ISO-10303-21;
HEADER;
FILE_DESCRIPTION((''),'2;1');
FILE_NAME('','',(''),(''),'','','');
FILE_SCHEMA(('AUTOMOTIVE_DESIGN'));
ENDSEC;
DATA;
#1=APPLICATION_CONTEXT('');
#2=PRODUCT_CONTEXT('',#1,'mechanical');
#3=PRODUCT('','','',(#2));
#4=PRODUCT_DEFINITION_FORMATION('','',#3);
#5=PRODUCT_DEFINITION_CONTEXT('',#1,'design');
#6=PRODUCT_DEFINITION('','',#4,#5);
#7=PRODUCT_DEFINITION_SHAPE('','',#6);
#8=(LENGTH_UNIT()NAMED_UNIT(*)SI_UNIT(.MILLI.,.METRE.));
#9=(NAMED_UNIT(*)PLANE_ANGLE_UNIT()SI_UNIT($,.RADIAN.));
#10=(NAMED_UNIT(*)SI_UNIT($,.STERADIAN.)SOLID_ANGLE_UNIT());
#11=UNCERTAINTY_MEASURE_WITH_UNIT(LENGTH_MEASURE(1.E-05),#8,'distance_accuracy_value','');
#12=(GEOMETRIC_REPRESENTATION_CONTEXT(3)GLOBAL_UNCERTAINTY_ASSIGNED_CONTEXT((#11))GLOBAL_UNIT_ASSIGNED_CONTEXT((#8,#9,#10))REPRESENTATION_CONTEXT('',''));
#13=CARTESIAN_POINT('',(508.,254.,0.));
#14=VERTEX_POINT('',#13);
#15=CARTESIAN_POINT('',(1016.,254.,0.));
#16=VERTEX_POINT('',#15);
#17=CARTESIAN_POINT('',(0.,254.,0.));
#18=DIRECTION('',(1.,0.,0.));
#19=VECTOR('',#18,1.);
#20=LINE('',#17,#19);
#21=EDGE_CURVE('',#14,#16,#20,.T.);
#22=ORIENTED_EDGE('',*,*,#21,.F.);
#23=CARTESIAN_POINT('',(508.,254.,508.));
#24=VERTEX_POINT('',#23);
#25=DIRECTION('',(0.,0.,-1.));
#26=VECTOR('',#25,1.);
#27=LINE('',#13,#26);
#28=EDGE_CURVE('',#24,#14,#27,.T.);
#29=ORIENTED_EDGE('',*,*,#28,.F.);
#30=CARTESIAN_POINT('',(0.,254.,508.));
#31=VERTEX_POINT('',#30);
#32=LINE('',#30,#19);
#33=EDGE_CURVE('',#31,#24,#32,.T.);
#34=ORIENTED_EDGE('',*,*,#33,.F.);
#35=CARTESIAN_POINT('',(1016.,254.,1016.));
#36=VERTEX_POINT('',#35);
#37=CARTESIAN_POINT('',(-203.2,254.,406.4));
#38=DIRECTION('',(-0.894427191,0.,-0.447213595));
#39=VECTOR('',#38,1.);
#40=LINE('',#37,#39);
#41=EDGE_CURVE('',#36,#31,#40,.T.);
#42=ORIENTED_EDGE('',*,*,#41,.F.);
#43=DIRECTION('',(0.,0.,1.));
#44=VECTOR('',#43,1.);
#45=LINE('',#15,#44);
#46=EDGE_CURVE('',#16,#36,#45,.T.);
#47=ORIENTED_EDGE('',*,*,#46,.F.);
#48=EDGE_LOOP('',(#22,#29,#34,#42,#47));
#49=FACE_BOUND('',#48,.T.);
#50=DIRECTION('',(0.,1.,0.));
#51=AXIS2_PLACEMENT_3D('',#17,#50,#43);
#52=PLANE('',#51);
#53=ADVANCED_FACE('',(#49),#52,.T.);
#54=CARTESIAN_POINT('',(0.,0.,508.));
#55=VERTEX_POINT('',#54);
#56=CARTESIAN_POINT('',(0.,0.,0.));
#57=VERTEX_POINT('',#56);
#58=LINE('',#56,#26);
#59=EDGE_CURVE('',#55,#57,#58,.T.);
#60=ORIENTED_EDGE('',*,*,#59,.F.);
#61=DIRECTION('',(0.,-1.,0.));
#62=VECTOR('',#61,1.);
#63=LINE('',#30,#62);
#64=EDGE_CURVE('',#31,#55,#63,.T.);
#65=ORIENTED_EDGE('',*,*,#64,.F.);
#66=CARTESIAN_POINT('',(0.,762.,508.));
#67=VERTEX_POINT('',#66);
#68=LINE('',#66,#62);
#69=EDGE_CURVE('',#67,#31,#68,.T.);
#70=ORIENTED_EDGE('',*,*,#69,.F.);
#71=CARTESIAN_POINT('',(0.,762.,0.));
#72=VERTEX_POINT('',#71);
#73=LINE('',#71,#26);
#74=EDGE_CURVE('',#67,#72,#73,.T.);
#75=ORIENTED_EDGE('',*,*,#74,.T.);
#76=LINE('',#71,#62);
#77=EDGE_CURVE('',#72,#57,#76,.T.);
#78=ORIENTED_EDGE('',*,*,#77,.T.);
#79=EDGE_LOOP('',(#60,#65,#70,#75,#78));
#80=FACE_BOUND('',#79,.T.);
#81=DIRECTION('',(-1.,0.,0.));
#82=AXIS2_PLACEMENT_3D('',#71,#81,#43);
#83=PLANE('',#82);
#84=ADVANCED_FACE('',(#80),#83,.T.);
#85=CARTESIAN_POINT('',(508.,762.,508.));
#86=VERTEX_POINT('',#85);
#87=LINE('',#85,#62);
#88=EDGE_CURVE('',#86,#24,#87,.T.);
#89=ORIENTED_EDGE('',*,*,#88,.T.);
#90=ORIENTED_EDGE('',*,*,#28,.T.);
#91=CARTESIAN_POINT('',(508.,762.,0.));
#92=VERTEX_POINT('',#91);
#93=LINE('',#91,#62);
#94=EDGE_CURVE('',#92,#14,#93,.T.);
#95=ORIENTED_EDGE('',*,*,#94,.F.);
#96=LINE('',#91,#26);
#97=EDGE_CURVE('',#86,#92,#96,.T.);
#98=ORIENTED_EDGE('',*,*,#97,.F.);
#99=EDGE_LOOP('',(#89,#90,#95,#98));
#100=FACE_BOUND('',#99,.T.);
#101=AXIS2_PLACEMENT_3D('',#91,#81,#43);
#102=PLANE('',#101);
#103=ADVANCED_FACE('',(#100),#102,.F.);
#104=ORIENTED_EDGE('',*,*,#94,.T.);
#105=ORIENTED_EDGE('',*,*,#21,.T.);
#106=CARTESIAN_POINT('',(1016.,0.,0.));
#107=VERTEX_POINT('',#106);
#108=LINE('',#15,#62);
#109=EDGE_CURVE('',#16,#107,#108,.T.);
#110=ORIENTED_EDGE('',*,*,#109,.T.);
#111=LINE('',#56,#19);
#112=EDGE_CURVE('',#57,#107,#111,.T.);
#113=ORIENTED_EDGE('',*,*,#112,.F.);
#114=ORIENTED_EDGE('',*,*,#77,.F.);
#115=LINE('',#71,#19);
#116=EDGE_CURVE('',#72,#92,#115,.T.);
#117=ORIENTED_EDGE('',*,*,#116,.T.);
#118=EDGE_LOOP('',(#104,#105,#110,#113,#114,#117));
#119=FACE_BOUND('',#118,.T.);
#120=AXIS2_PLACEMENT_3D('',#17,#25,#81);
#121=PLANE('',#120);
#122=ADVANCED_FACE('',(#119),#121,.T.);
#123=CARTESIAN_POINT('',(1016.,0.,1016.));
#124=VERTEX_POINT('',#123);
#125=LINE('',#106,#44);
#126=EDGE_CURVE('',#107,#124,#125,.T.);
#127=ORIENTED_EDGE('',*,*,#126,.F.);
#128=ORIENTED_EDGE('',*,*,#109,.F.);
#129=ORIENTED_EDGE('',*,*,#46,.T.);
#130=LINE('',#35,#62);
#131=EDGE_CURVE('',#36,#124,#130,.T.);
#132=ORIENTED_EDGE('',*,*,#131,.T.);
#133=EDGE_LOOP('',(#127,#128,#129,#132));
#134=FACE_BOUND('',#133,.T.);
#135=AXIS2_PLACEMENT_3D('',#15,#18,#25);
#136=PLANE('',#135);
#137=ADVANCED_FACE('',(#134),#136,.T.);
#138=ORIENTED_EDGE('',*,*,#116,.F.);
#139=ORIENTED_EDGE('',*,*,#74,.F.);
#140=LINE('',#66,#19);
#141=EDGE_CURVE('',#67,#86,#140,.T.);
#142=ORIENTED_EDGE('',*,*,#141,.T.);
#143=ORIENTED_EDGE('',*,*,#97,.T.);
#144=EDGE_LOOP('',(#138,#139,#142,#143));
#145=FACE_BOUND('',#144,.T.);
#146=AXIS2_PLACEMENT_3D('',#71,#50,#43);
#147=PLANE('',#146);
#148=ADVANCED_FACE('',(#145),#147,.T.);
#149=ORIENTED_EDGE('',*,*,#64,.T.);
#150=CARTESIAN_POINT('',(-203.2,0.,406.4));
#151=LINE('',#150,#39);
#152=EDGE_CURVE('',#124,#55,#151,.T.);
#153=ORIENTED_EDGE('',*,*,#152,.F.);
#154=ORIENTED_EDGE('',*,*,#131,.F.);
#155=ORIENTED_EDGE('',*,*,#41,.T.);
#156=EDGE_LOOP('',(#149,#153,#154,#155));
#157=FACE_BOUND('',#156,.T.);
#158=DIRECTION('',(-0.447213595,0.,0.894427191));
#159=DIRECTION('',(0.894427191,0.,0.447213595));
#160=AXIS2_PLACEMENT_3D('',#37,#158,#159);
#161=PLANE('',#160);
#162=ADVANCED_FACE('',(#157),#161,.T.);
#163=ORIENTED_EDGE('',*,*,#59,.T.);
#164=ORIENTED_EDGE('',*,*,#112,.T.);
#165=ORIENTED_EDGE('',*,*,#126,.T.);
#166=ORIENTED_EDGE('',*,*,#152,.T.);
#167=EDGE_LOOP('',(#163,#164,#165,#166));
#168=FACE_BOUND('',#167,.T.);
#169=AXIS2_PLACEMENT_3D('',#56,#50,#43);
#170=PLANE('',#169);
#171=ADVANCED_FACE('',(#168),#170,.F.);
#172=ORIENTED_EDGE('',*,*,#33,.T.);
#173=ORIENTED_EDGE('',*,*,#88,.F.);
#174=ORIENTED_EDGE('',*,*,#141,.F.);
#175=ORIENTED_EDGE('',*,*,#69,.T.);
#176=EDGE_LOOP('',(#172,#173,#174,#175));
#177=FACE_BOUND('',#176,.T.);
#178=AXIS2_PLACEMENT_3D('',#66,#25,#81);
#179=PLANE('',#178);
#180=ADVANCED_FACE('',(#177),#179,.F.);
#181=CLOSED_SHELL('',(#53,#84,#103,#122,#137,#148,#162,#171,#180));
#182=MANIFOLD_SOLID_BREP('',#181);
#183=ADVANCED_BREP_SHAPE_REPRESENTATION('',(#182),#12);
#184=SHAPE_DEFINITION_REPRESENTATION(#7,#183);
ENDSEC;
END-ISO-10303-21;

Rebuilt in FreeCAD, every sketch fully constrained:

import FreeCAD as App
import Part
import Sketcher

V = App.Vector
Q = App.Units.Quantity

doc = App.newDocument("Part")
body = doc.addObject("PartDesign::Body", "Body")

sketch1 = doc.addObject("Sketcher::SketchObject", "Sketch")
body.addObject(sketch1)
sketch1.AttachmentSupport = (doc.XZ_Plane, [""])
sketch1.MapMode = "FlatFace"
sketch1.addGeometry(Part.LineSegment(V(1016, 0, 0), V(508, 0, 0)), False)
sketch1.addGeometry(Part.LineSegment(V(508, 0, 0), V(508, 508, 0)), False)
sketch1.addGeometry(Part.LineSegment(V(508, 508, 0), V(0, 508, 0)), False)
sketch1.addGeometry(Part.LineSegment(V(0, 508, 0), V(1016, 1016, 0)), False)
sketch1.addGeometry(Part.LineSegment(V(1016, 1016, 0), V(1016, 0, 0)), False)
sketch1.addConstraint(Sketcher.Constraint("Coincident", 0, 2, 1, 1))
sketch1.addConstraint(Sketcher.Constraint("Coincident", 1, 2, 2, 1))
sketch1.addConstraint(Sketcher.Constraint("Coincident", 2, 2, 3, 1))
sketch1.addConstraint(Sketcher.Constraint("Coincident", 3, 2, 4, 1))
sketch1.addConstraint(Sketcher.Constraint("Coincident", 4, 2, 0, 1))
sketch1.addConstraint(Sketcher.Constraint("Horizontal", 0))
sketch1.addConstraint(Sketcher.Constraint("Vertical", 1))
sketch1.addConstraint(Sketcher.Constraint("Horizontal", 2))
sketch1.addConstraint(Sketcher.Constraint("Vertical", 4))
sketch1.addConstraint(Sketcher.Constraint("PointOnObject", 0, 2, -1))
sketch1.addConstraint(Sketcher.Constraint("PointOnObject", 2, 2, -2))
sketch1.addConstraint(Sketcher.Constraint("Equal", 0, 2))
sketch1.addConstraint(Sketcher.Constraint("Equal", 2, 1))
sketch1.addConstraint(Sketcher.Constraint("DistanceX", 0, 2, 0, 1, Q("20 in")))
sketch1.addConstraint(Sketcher.Constraint("DistanceY", 4, 2, 4, 1, Q("40 in")))
pad1 = doc.addObject("PartDesign::Pad", "Pad")
body.addObject(pad1)
pad1.Profile = sketch1
pad1.Length = Q("10 in")
pad1.Reversed = True

sketch2 = doc.addObject("Sketcher::SketchObject", "Sketch001")
body.addObject(sketch2)
sketch2.AttachmentSupport = (doc.XZ_Plane, [""])
sketch2.MapMode = "FlatFace"
sketch2.addGeometry(Part.LineSegment(V(0, 0, 0), V(0, 508, 0)), False)
sketch2.addGeometry(Part.LineSegment(V(0, 508, 0), V(508, 508, 0)), False)
sketch2.addGeometry(Part.LineSegment(V(508, 508, 0), V(508, 0, 0)), False)
sketch2.addGeometry(Part.LineSegment(V(508, 0, 0), V(0, 0, 0)), False)
sketch2.addConstraint(Sketcher.Constraint("Coincident", 0, 2, 1, 1))
sketch2.addConstraint(Sketcher.Constraint("Coincident", 1, 2, 2, 1))
sketch2.addConstraint(Sketcher.Constraint("Coincident", 2, 2, 3, 1))
sketch2.addConstraint(Sketcher.Constraint("Coincident", 3, 2, 0, 1))
sketch2.addConstraint(Sketcher.Constraint("Vertical", 0))
sketch2.addConstraint(Sketcher.Constraint("Horizontal", 1))
sketch2.addConstraint(Sketcher.Constraint("Vertical", 2))
sketch2.addConstraint(Sketcher.Constraint("Horizontal", 3))
sketch2.addConstraint(Sketcher.Constraint("Coincident", 3, 2, -1, 1))
sketch2.addConstraint(Sketcher.Constraint("Equal", 3, 0))
sketch2.addConstraint(Sketcher.Constraint("DistanceX", 1, 1, 1, 2, Q("20 in")))
pad2 = doc.addObject("PartDesign::Pad", "Pad001")
body.addObject(pad2)
pad2.Profile = sketch2
pad2.Length = Q("30 in")
pad2.Reversed = True

doc.recompute()
